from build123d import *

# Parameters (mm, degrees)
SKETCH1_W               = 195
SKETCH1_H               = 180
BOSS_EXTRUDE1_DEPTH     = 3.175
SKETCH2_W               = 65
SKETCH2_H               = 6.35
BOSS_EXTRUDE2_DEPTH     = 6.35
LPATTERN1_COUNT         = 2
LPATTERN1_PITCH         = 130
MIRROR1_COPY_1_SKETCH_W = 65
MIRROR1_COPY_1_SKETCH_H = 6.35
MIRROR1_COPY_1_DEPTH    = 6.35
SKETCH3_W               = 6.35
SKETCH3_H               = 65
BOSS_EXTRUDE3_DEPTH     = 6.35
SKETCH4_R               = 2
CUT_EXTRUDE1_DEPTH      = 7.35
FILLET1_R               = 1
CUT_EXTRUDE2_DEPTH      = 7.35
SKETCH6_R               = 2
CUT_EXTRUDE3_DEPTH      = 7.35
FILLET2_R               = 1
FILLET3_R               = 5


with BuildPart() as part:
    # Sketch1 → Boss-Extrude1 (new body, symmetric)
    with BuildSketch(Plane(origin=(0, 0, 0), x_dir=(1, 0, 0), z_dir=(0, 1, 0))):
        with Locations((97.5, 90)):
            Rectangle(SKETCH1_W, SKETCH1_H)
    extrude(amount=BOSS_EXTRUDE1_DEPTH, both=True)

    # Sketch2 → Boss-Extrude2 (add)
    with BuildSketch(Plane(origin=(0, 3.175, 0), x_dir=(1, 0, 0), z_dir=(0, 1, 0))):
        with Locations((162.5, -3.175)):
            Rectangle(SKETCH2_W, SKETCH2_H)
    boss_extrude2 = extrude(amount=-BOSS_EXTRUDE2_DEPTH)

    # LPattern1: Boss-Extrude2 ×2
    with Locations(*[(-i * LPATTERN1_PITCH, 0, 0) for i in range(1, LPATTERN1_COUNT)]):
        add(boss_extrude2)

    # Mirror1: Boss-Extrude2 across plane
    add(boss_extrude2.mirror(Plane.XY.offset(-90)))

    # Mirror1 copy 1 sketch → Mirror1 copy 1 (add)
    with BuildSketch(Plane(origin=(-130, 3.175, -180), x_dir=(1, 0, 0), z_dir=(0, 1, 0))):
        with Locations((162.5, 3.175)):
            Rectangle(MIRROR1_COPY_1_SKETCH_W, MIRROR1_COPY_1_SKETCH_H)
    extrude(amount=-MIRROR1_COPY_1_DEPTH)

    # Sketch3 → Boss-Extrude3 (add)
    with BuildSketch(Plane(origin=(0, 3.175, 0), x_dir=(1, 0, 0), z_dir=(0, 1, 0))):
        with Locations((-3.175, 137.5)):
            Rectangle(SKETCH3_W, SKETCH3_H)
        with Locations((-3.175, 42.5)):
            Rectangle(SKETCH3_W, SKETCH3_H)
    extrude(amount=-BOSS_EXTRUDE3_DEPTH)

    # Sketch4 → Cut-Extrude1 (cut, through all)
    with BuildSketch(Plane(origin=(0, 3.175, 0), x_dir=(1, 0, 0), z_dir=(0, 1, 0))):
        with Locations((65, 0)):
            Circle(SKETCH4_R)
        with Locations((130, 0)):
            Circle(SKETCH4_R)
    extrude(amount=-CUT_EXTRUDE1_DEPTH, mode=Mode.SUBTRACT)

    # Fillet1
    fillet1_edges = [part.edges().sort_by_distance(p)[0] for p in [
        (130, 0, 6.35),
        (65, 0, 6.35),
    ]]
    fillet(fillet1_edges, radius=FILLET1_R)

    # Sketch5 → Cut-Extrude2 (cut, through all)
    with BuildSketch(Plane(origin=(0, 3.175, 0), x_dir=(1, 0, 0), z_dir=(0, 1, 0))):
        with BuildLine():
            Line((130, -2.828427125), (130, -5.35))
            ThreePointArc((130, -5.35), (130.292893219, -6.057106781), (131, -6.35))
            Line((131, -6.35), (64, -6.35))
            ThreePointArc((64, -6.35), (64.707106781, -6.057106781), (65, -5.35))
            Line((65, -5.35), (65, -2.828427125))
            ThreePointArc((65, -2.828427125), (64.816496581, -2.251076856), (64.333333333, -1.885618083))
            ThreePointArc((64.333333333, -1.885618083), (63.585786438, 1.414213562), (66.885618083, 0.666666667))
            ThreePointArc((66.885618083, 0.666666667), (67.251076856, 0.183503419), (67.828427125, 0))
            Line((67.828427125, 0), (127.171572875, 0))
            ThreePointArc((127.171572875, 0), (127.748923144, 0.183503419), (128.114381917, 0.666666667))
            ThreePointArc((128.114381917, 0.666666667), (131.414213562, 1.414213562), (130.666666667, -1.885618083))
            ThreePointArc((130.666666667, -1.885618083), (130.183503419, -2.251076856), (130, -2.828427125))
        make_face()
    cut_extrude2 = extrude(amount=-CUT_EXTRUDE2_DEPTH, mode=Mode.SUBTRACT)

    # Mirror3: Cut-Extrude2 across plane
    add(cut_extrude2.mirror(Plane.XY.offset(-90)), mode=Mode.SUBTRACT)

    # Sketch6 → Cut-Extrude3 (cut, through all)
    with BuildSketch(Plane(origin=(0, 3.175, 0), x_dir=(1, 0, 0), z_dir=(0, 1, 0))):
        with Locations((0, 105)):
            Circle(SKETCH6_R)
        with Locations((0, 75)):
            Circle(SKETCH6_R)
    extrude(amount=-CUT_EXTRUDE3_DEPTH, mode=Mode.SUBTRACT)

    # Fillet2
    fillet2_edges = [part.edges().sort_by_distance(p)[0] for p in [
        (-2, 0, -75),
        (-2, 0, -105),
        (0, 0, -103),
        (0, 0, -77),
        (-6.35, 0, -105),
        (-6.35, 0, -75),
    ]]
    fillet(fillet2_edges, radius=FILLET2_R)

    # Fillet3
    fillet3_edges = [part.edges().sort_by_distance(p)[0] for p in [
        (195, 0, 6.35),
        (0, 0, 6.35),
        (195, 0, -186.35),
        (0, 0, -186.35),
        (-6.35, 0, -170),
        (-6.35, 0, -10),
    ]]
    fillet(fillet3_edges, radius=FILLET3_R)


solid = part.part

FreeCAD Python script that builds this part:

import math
import FreeCAD as App
import Part
import Sketcher
Q = App.Units.Quantity


def edges_at(feature, points):
    """Names of the edges that pass closest to the given points."""
    edges = feature.Shape.Edges
    near = lambda p: min(range(len(edges)), key=lambda i: edges[i].distToShape(Part.Vertex(*p))[0])
    return sorted({f"Edge{near(p) + 1}" for p in points})


def add_polygon(sketch, points):
    """Adds a closed chain of lines whose ends are joined by coincident constraints."""
    first, n = sketch.GeometryCount, len(points)
    for a, b in zip(points, points[1:] + points[:1]):
        sketch.addGeometry(Part.LineSegment(App.Vector(*a, 0), App.Vector(*b, 0)), False)
    for i in range(n):
        sketch.addConstraint(Sketcher.Constraint("Coincident", first + i, 2, first + (i + 1) % n, 1))

doc = App.newDocument("Part")
body = doc.addObject("PartDesign::Body", "Body")

# Sketch on XZ plane
sketch1 = doc.addObject("Sketcher::SketchObject", "Sketch")
body.addObject(sketch1)
sketch1.AttachmentSupport = (doc.XZ_Plane, [""])
sketch1.MapMode = "FlatFace"
add_polygon(sketch1, [(0, -180), (0, 0), (195, 0), (195, -180)])  # lines 0-3
sketch1.addConstraint([
    Sketcher.Constraint("Vertical", 0),
    Sketcher.Constraint("Horizontal", 1),
    Sketcher.Constraint("Vertical", 2),
    Sketcher.Constraint("Horizontal", 3),
    Sketcher.Constraint("Coincident", 0, 2, -1, 1),
    Sketcher.Constraint("DistanceX", 1, 1, 1, 2, Q("195 mm")),
    Sketcher.Constraint("DistanceY", 0, 1, 0, 2, Q("180 mm")),
])
pad1 = doc.addObject("PartDesign::Pad", "Pad")
body.addObject(pad1)
pad1.Profile = sketch1
pad1.Length = 6.35
pad1.Midplane = True

# Sketch on XZ plane
sketch2 = doc.addObject("Sketcher::SketchObject", "Sketch001")
body.addObject(sketch2)
sketch2.AttachmentSupport = (doc.XZ_Plane, [""])
sketch2.MapMode = "FlatFace"
sketch2.AttachmentOffset = App.Placement(App.Vector(0, 0, -3.175), App.Rotation())
add_polygon(sketch2, [(130, 0), (130, 6), (195, 6), (195, 0)])  # lines 0-3
sketch2.addConstraint([
    Sketcher.Constraint("Vertical", 0),
    Sketcher.Constraint("Horizontal", 1),
    Sketcher.Constraint("Vertical", 2),
    Sketcher.Constraint("Horizontal", 3),
    Sketcher.Constraint("PointOnObject", 2, 2, -1),
    Sketcher.Constraint("DistanceX", 1, 1, 1, 2, Q("65 mm")),
    Sketcher.Constraint("DistanceX", -1, 1, 0, 2, Q("130 mm")),
    Sketcher.Constraint("DistanceY", 0, 1, 0, 2, Q("6.35 mm")),
])
pad2 = doc.addObject("PartDesign::Pad", "Pad001")
body.addObject(pad2)
pad2.Profile = sketch2
pad2.Length = 6.35
doc.recompute()

linearpattern = doc.addObject("PartDesign::LinearPattern", "LinearPattern")
body.addObject(linearpattern)
linearpattern.Originals = [pad2]
linearpattern.Direction = (doc.X_Axis, [""])
linearpattern.Mode = "offset"
linearpattern.Offset = 130
linearpattern.Occurrences = 2
linearpattern.Reversed = True
body.Tip = linearpattern
doc.recompute()

datumplane = doc.addObject("PartDesign::Plane", "DatumPlane")
body.addObject(datumplane)
datumplane.AttachmentSupport = (doc.XY_Plane, [""])
datumplane.MapMode = "FlatFace"
datumplane.AttachmentOffset = App.Placement(App.Vector(0, 0, -90), App.Rotation())
mirrored = doc.addObject("PartDesign::Mirrored", "Mirrored")
body.addObject(mirrored)
mirrored.Originals = [pad2]
mirrored.MirrorPlane = (datumplane, [""])
body.Tip = mirrored

# Sketch on XZ plane
sketch3 = doc.addObject("Sketcher::SketchObject", "Sketch002")
body.addObject(sketch3)
sketch3.AttachmentSupport = (doc.XZ_Plane, [""])
sketch3.MapMode = "FlatFace"
sketch3.AttachmentOffset = App.Placement(App.Vector(0, 0, -3.175), App.Rotation())
add_polygon(sketch3, [(0, -186), (0, -180), (65, -180), (65, -186)])  # lines 0-3
sketch3.addConstraint([
    Sketcher.Constraint("Vertical", 0),
    Sketcher.Constraint("Horizontal", 1),
    Sketcher.Constraint("Vertical", 2),
    Sketcher.Constraint("Horizontal", 3),
    Sketcher.Constraint("PointOnObject", 0, 2, -2),
    Sketcher.Constraint("DistanceX", 1, 1, 1, 2, Q("65 mm")),
    Sketcher.Constraint("DistanceY", 0, 2, -1, 1, Q("180 mm")),
    Sketcher.Constraint("DistanceY", 0, 1, 0, 2, Q("6.35 mm")),
])
pad3 = doc.addObject("PartDesign::Pad", "Pad002")
body.addObject(pad3)
pad3.Profile = sketch3
pad3.Length = 6.35

# Sketch on XZ plane
sketch4 = doc.addObject("Sketcher::SketchObject", "Sketch003")
body.addObject(sketch4)
sketch4.AttachmentSupport = (doc.XZ_Plane, [""])
sketch4.MapMode = "FlatFace"
sketch4.AttachmentOffset = App.Placement(App.Vector(0, 0, -3.175), App.Rotation())
add_polygon(sketch4, [(-6, -170), (-6, -105), (0, -105), (0, -170)])  # lines 0-3
add_polygon(sketch4, [(-6, -75), (-6, -10), (0, -10), (0, -75)])  # lines 4-7
sketch4.addConstraint([
    Sketcher.Constraint("Vertical", 0),
    Sketcher.Constraint("Horizontal", 1),
    Sketcher.Constraint("Vertical", 2),
    Sketcher.Constraint("Horizontal", 3),
    Sketcher.Constraint("Vertical", 4),
    Sketcher.Constraint("Horizontal", 5),
    Sketcher.Constraint("Vertical", 6),
    Sketcher.Constraint("Horizontal", 7),
    Sketcher.Constraint("PointOnObject", 1, 2, -2),
    Sketcher.Constraint("PointOnObject", 5, 2, -2),
    Sketcher.Constraint("Vertical", 3, 2, 4, 2),
    Sketcher.Constraint("Equal", 2, 4),
    Sketcher.Constraint("DistanceY", 0, 1, 0, 2, Q("65 mm")),
    Sketcher.Constraint("DistanceY", 0, 2, -1, 1, Q("105 mm")),
    Sketcher.Constraint("DistanceY", 4, 2, -1, 1, Q("10 mm")),
    Sketcher.Constraint("DistanceX", 1, 1, 1, 2, Q("6.35 mm")),
])
pad4 = doc.addObject("PartDesign::Pad", "Pad003")
body.addObject(pad4)
pad4.Profile = sketch4
pad4.Length = 6.35

# Sketch on XZ plane
sketch5 = doc.addObject("Sketcher::SketchObject", "Sketch004")
body.addObject(sketch5)
sketch5.AttachmentSupport = (doc.XZ_Plane, [""])
sketch5.MapMode = "FlatFace"
sketch5.AttachmentOffset = App.Placement(App.Vector(0, 0, -3.175), App.Rotation())
sketch5.addGeometry([
    Part.Circle(App.Vector(65, 0, 0), App.Vector(0, 0, 1), 2),
    Part.Circle(App.Vector(130, 0, 0), App.Vector(0, 0, 1), 2),
], False)
sketch5.addConstraint([
    Sketcher.Constraint("Equal", 0, 1),
    Sketcher.Constraint("PointOnObject", 0, 3, -1),
    Sketcher.Constraint("PointOnObject", 1, 3, -1),
    Sketcher.Constraint("Diameter", 0, Q("4 mm")),
    Sketcher.Constraint("DistanceX", -1, 1, 0, 3, Q("65 mm")),
    Sketcher.Constraint("DistanceX", -1, 1, 1, 3, Q("130 mm")),
])
pocket1 = doc.addObject("PartDesign::Pocket", "Pocket")
body.addObject(pocket1)
pocket1.Profile = sketch5
pocket1.Type = "ThroughAll"
pocket1.Reversed = True
doc.recompute()

fillet = doc.addObject("PartDesign::Fillet", "Fillet")
body.addObject(fillet)
fillet.Base = (pocket1, edges_at(pocket1, [(130, 0, 6.35), (65, 0, 6.35)]))
fillet.Radius = 1

# Sketch on XZ plane
sketch6 = doc.addObject("Sketcher::SketchObject", "Sketch005")
body.addObject(sketch6)
sketch6.AttachmentSupport = (doc.XZ_Plane, [""])
sketch6.MapMode = "FlatFace"
sketch6.AttachmentOffset = App.Placement(App.Vector(0, 0, -3.175), App.Rotation())
sketch6.addGeometry([
    Part.LineSegment(App.Vector(130, 5.3, 0), App.Vector(130, 2.8, 0)),  # 0
    Part.ArcOfCircle(Part.Circle(App.Vector(131, 2.8, 0), App.Vector(0, 0, 1), 1), math.radians(180), math.radians(251)),  # 1
    Part.ArcOfCircle(Part.Circle(App.Vector(130, 0, 0), App.Vector(0, 0, 1), 2), math.radians(-161), math.radians(71)),  # 2
    Part.ArcOfCircle(Part.Circle(App.Vector(127.2, -1, 0), App.Vector(0, 0, 1), 1), math.radians(19), math.radians(90)),  # 3
    Part.LineSegment(App.Vector(127.2, 0, 0), App.Vector(67.8, 0, 0)),  # 4
    Part.ArcOfCircle(Part.Circle(App.Vector(67.8, -1, 0), App.Vector(0, 0, 1), 1), math.radians(90), math.radians(161)),  # 5
    Part.ArcOfCircle(Part.Circle(App.Vector(65, 0, 0), App.Vector(0, 0, 1), 2), math.radians(109), math.radians(341)),  # 6
    Part.ArcOfCircle(Part.Circle(App.Vector(64, 2.8, 0), App.Vector(0, 0, 1), 1), math.radians(-71), math.radians(0)),  # 7
    Part.LineSegment(App.Vector(65, 2.8, 0), App.Vector(65, 5.3, 0)),  # 8
    Part.ArcOfCircle(Part.Circle(App.Vector(64, 5.3, 0), App.Vector(0, 0, 1), 1), math.radians(0), math.radians(90)),  # 9
    Part.LineSegment(App.Vector(64, 6.3, 0), App.Vector(131, 6.3, 0)),  # 10
    Part.ArcOfCircle(Part.Circle(App.Vector(131, 5.3, 0), App.Vector(0, 0, 1), 1), math.radians(90), math.radians(180)),  # 11
], False)
sketch6.addConstraint([
    Sketcher.Constraint("Tangent", 0, 2, 1, 1),
    Sketcher.Constraint("Tangent", 1, 2, 2, 2),
    Sketcher.Constraint("Tangent", 2, 1, 3, 1),
    Sketcher.Constraint("Tangent", 3, 2, 4, 1),
    Sketcher.Constraint("Tangent", 4, 2, 5, 1),
    Sketcher.Constraint("Tangent", 5, 2, 6, 2),
    Sketcher.Constraint("Tangent", 6, 1, 7, 1),
    Sketcher.Constraint("Tangent", 7, 2, 8, 1),
    Sketcher.Constraint("Tangent", 8, 2, 9, 1),
    Sketcher.Constraint("Tangent", 9, 2, 10, 1),
    Sketcher.Constraint("Tangent", 10, 2, 11, 1),
    Sketcher.Constraint("Tangent", 11, 2, 0, 1),
    Sketcher.Constraint("Vertical", 0),
    Sketcher.Constraint("Horizontal", 4),
    Sketcher.Constraint("Vertical", 8),
    Sketcher.Constraint("Horizontal", 10),
    Sketcher.Constraint("Equal", 1, 3),
    Sketcher.Constraint("Equal", 3, 5),
    Sketcher.Constraint("Equal", 2, 6),
    Sketcher.Constraint("Equal", 5, 7),
    Sketcher.Constraint("Equal", 7, 9),
    Sketcher.Constraint("Equal", 9, 11),
    Sketcher.Constraint("PointOnObject", 2, 3, -1),
    Sketcher.Constraint("PointOnObject", 6, 3, -1),
    Sketcher.Constraint("PointOnObject", 3, 2, -1),
    Sketcher.Constraint("Horizontal", 1, 3, 7, 3),
    Sketcher.Constraint("Vertical", 2, 3, 0, 2),
    Sketcher.Constraint("Radius", 1, Q("1 mm")),
    Sketcher.Constraint("Radius", 2, Q("2 mm")),
    Sketcher.Constraint("DistanceX", 10, 1, 10, 2, Q("67 mm")),
    Sketcher.Constraint("DistanceX", -1, 1, 1, 3, Q("131 mm")),
    Sketcher.Constraint("DistanceY", -1, 1, 9, 3, Q("5.35 mm")),
])
pocket2 = doc.addObject("PartDesign::Pocket", "Pocket001")
body.addObject(pocket2)
pocket2.Profile = sketch6
pocket2.Type = "ThroughAll"
pocket2.Reversed = True
doc.recompute()

datumplane2 = doc.addObject("PartDesign::Plane", "DatumPlane001")
body.addObject(datumplane2)
datumplane2.AttachmentSupport = (doc.XY_Plane, [""])
datumplane2.MapMode = "FlatFace"
datumplane2.AttachmentOffset = App.Placement(App.Vector(0, 0, -90), App.Rotation())
mirrored2 = doc.addObject("PartDesign::Mirrored", "Mirrored001")
body.addObject(mirrored2)
mirrored2.Originals = [pocket2]
mirrored2.MirrorPlane = (datumplane2, [""])
body.Tip = mirrored2

# Sketch on XZ plane
sketch7 = doc.addObject("Sketcher::SketchObject", "Sketch006")
body.addObject(sketch7)
sketch7.AttachmentSupport = (doc.XZ_Plane, [""])
sketch7.MapMode = "FlatFace"
sketch7.AttachmentOffset = App.Placement(App.Vector(0, 0, -3.175), App.Rotation())
sketch7.addGeometry([
    Part.Circle(App.Vector(0, -105, 0), App.Vector(0, 0, 1), 2),
    Part.Circle(App.Vector(0, -75, 0), App.Vector(0, 0, 1), 2),
], False)
sketch7.addConstraint([
    Sketcher.Constraint("Equal", 0, 1),
    Sketcher.Constraint("PointOnObject", 0, 3, -2),
    Sketcher.Constraint("PointOnObject", 1, 3, -2),
    Sketcher.Constraint("Diameter", 0, Q("4 mm")),
    Sketcher.Constraint("DistanceY", 0, 3, -1, 1, Q("105 mm")),
    Sketcher.Constraint("DistanceY", 1, 3, -1, 1, Q("75 mm")),
])
pocket3 = doc.addObject("PartDesign::Pocket", "Pocket002")
body.addObject(pocket3)
pocket3.Profile = sketch7
pocket3.Type = "ThroughAll"
pocket3.Reversed = True
doc.recompute()

fillet2 = doc.addObject("PartDesign::Fillet", "Fillet001")
body.addObject(fillet2)
fillet2.Base = (pocket3, edges_at(pocket3, [
    (-2, 0, -75),
    (-2, 0, -105),
    (0, 0, -103),
    (0, 0, -77),
    (-6.35, 0, -105),
    (-6.35, 0, -75),
]))
fillet2.Radius = 1
doc.recompute()

fillet3 = doc.addObject("PartDesign::Fillet", "Fillet002")
body.addObject(fillet3)
fillet3.Base = (fillet2, edges_at(fillet2, [
    (195, 0, 6.35),
    (0, 0, 6.35),
    (195, 0, -186.35),
    (0, 0, -186.35),
    (-6.35, 0, -170),
    (-6.35, 0, -10),
]))
fillet3.Radius = 5

doc.recompute()
